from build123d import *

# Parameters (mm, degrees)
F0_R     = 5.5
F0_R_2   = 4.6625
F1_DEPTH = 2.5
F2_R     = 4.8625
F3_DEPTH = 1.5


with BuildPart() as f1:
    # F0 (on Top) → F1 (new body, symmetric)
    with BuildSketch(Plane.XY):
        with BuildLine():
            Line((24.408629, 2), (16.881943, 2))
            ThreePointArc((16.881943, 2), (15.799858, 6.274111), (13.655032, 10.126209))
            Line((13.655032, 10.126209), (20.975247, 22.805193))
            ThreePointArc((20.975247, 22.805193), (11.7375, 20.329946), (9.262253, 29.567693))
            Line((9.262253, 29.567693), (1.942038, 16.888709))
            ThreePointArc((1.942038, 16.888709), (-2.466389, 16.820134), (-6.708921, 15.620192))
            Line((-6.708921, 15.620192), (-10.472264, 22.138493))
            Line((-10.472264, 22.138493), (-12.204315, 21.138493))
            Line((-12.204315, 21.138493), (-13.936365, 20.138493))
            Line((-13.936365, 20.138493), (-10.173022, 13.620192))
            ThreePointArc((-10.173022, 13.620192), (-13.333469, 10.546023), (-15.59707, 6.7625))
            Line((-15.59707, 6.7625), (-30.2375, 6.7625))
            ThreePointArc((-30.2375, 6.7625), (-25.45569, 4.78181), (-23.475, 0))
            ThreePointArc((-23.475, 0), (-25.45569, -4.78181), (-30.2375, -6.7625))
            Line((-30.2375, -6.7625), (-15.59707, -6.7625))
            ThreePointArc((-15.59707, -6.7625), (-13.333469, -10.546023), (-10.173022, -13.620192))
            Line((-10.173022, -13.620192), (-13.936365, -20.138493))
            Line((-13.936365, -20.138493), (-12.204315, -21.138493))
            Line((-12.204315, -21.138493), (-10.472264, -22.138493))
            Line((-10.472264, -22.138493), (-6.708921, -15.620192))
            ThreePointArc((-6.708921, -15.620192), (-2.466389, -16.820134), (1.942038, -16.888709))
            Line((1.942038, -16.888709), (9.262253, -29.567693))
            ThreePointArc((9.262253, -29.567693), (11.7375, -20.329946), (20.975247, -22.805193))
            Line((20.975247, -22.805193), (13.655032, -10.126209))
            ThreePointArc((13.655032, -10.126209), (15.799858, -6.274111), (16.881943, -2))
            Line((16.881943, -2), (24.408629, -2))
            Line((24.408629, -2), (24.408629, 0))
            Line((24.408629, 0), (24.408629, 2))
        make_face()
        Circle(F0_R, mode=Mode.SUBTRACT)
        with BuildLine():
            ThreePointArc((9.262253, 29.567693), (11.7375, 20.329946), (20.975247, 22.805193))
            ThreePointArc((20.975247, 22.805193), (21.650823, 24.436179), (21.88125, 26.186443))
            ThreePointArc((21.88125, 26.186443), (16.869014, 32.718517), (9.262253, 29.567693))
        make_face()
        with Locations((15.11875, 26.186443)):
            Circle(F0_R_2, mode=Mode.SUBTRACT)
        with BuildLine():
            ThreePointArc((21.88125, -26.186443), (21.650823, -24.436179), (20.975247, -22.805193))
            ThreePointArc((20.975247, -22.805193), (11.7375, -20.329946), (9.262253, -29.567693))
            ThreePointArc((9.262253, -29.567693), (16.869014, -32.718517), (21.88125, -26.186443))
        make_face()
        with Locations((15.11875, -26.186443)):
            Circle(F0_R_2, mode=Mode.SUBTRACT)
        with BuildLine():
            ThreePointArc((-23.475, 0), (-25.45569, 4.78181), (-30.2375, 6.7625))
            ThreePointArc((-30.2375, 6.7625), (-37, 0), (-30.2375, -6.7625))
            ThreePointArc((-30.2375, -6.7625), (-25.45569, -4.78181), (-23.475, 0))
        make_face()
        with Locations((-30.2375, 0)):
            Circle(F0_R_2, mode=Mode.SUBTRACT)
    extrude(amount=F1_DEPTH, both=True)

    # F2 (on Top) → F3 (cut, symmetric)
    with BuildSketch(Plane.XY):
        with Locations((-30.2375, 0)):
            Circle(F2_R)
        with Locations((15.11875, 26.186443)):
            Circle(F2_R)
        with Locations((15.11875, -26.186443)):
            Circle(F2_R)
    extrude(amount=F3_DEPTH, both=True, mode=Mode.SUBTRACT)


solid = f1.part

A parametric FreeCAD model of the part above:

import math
import FreeCAD as App
import Part
import Sketcher

V = App.Vector
Q = App.Units.Quantity

doc = App.newDocument("Part")
body = doc.addObject("PartDesign::Body", "Body")

# Sketch on XY plane
sketch1 = body.newObject("Sketcher::SketchObject", "Sketch")
sketch1.AttachmentSupport = (doc.getObject("XY_Plane"), [""])
sketch1.MapMode = "FlatFace"
sketch1.addGeometry([
    Part.LineSegment(V(24.408629, 2, 0), V(16.881943, 2, 0)),  # 0
    Part.ArcOfCircle(Part.Circle(V(-0.000018, -0.000007, 0), V(0, 0, 1), 17.000019), math.radians(6.756342), math.radians(36.559631)),  # 1
    Part.LineSegment(V(13.655032, 10.126209, 0), V(20.975247, 22.805193, 0)),  # 2
    Part.ArcOfCircle(Part.Circle(V(15.118738, 26.186446, 0), V(0, 0, 1), 6.762512), math.radians(-29.999969), math.radians(-0.000024)),  # 3
    Part.ArcOfCircle(Part.Circle(V(15.11875, 26.186444, 0), V(0, 0, 1), 6.7625), math.radians(-0.000006), math.radians(150.000007)),  # 4
    Part.LineSegment(V(9.262253, 29.567693, 0), V(1.942038, 16.888709, 0)),  # 5
    Part.ArcOfCircle(Part.Circle(V(0.000003, -0.000025, 0), V(0, 0, 1), 17.000025), math.radians(83.44037), math.radians(113.243649)),  # 6
    Part.LineSegment(V(-6.708921, 15.620192, 0), V(-10.472264, 22.138493, 0)),  # 7
    Part.LineSegment(V(-10.472264, 22.138493, 0), V(-12.204315, 21.138493, 0)),  # 8
    Part.LineSegment(V(-12.204315, 21.138493, 0), V(-13.936365, 20.138493, 0)),  # 9
    Part.LineSegment(V(-13.936365, 20.138493, 0), V(-10.173022, 13.620192, 0)),  # 10
    Part.ArcOfCircle(Part.Circle(V(0.000004, -0.000003, 0), V(0, 0, 1), 17.000005), math.radians(126.756331), math.radians(156.559646)),  # 11
    Part.LineSegment(V(-15.59707, 6.7625, 0), V(-30.2375, 6.7625, 0)),  # 12
    Part.ArcOfCircle(Part.Circle(V(-30.2375, 0, 0), V(0, 0, 1), 6.7625), math.radians(90), math.radians(270)),  # 13
    Part.LineSegment(V(-30.2375, -6.7625, 0), V(-15.59707, -6.7625, 0)),  # 14
    Part.ArcOfCircle(Part.Circle(V(0.000004, 0.000003, 0), V(0, 0, 1), 17.000005), math.radians(-156.559646), math.radians(-126.756331)),  # 15
    Part.LineSegment(V(-10.173022, -13.620192, 0), V(-13.936365, -20.138493, 0)),  # 16
    Part.LineSegment(V(-13.936365, -20.138493, 0), V(-12.204315, -21.138493, 0)),  # 17
    Part.LineSegment(V(-12.204315, -21.138493, 0), V(-10.472264, -22.138493, 0)),  # 18
    Part.LineSegment(V(-10.472264, -22.138493, 0), V(-6.708921, -15.620192, 0)),  # 19
    Part.ArcOfCircle(Part.Circle(V(0.000003, 0.000025, 0), V(0, 0, 1), 17.000025), math.radians(-113.243649), math.radians(-83.44037)),  # 20
    Part.LineSegment(V(1.942038, -16.888709, 0), V(9.262253, -29.567693, 0)),  # 21
    Part.ArcOfCircle(Part.Circle(V(15.11875, -26.186444, 0), V(0, 0, 1), 6.7625), math.radians(-150.000007), math.radians(0.000006)),  # 22
    Part.ArcOfCircle(Part.Circle(V(15.118738, -26.186446, 0), V(0, 0, 1), 6.762512), math.radians(0.000024), math.radians(29.999969)),  # 23
    Part.LineSegment(V(20.975247, -22.805193, 0), V(13.655032, -10.126209, 0)),  # 24
    Part.ArcOfCircle(Part.Circle(V(-0.000018, 0.000007, 0), V(0, 0, 1), 17.000019), math.radians(-36.559631), math.radians(-6.756342)),  # 25
    Part.LineSegment(V(16.881943, -2, 0), V(24.408629, -2, 0)),  # 26
    Part.LineSegment(V(24.408629, -2, 0), V(24.408629, 2, 0)),  # 27
    Part.Circle(V(-30.2375, 0, 0), V(0, 0, 1), 4.6625),  # 28
    Part.Circle(V(15.11875, -26.186443, 0), V(0, 0, 1), 4.6625),  # 29
    Part.Circle(V(0, 0, 0), V(0, 0, 1), 5.5),  # 30
    Part.Circle(V(15.11875, 26.186443, 0), V(0, 0, 1), 4.6625),  # 31
], False)
sketch1.addConstraint([
    Sketcher.Constraint("Coincident", 0, 2, 1, 1),
    Sketcher.Constraint("Coincident", 1, 2, 2, 1),
    Sketcher.Constraint("Tangent", 2, 2, 3, 1),
    Sketcher.Constraint("Tangent", 3, 2, 4, 1),
    Sketcher.Constraint("Tangent", 4, 2, 5, 1),
    Sketcher.Constraint("Coincident", 5, 2, 6, 1),
    Sketcher.Constraint("Coincident", 6, 2, 7, 1),
    Sketcher.Constraint("Coincident", 7, 2, 8, 1),
    Sketcher.Constraint("Coincident", 8, 2, 9, 1),
    Sketcher.Constraint("Coincident", 9, 2, 10, 1),
    Sketcher.Constraint("Coincident", 10, 2, 11, 1),
    Sketcher.Constraint("Coincident", 11, 2, 12, 1),
    Sketcher.Constraint("Tangent", 12, 2, 13, 1),
    Sketcher.Constraint("Tangent", 13, 2, 14, 1),
    Sketcher.Constraint("Coincident", 14, 2, 15, 1),
    Sketcher.Constraint("Coincident", 15, 2, 16, 1),
    Sketcher.Constraint("Coincident", 16, 2, 17, 1),
    Sketcher.Constraint("Coincident", 17, 2, 18, 1),
    Sketcher.Constraint("Coincident", 18, 2, 19, 1),
    Sketcher.Constraint("Coincident", 19, 2, 20, 1),
    Sketcher.Constraint("Coincident", 20, 2, 21, 1),
    Sketcher.Constraint("Tangent", 21, 2, 22, 1),
    Sketcher.Constraint("Tangent", 22, 2, 23, 1),
    Sketcher.Constraint("Tangent", 23, 2, 24, 1),
    Sketcher.Constraint("Coincident", 24, 2, 25, 1),
    Sketcher.Constraint("Coincident", 25, 2, 26, 1),
    Sketcher.Constraint("Coincident", 26, 2, 27, 1),
    Sketcher.Constraint("Coincident", 27, 2, 0, 1),
    Sketcher.Constraint("Horizontal", 0),
    Sketcher.Constraint("Horizontal", 12),
    Sketcher.Constraint("Horizontal", 14),
    Sketcher.Constraint("Horizontal", 26),
    Sketcher.Constraint("Vertical", 27),
    Sketcher.Constraint("Coincident", 11, 3, -1, 1),
    Sketcher.Constraint("Coincident", 15, 3, -1, 1),
    Sketcher.Constraint("Coincident", 30, 3, -1, 1),
    Sketcher.Constraint("Coincident", 28, 3, 13, 3),
    Sketcher.Constraint("Coincident", 29, 3, 22, 3),
    Sketcher.Constraint("Coincident", 31, 3, 4, 3),
    Sketcher.Constraint("Equal", 4, 13),
    Sketcher.Constraint("Equal", 11, 15),
    Sketcher.Constraint("Equal", 6, 20),
    Sketcher.Constraint("Equal", 13, 22),
    Sketcher.Constraint("Equal", 3, 23),
    Sketcher.Constraint("Equal", 1, 25),
    Sketcher.Constraint("Equal", 28, 29),
    Sketcher.Constraint("Equal", 29, 31),
    Sketcher.Constraint("Symmetric", 6, 3, 20, 3, -1, 1),
    Sketcher.Constraint("Symmetric", 4, 3, 22, 3, -1),
    Sketcher.Constraint("Symmetric", 1, 3, 25, 3, -1),
    Sketcher.Constraint("Symmetric", 9, 2, 16, 2, -1),
    Sketcher.Constraint("Symmetric", 8, 2, 17, 2, -1),
    Sketcher.Constraint("Symmetric", 7, 2, 18, 2, -1),
    Sketcher.Constraint("Symmetric", 6, 2, 19, 2, -1),
    Sketcher.Constraint("PointOnObject", 13, 3, -1),
    Sketcher.Constraint("Parallel", 2, 5),
    Sketcher.Constraint("Perpendicular", 7, 8),
    Sketcher.Constraint("Parallel", 8, 9),
    Sketcher.Constraint("Perpendicular", 9, 10),
    Sketcher.Constraint("Parallel", 5, 16),
    Sketcher.Constraint("Perpendicular", 16, 17),
    Sketcher.Constraint("Parallel", 10, 21),
    Sketcher.Constraint("Parallel", 21, 24),
    Sketcher.Constraint("Horizontal", 31, 3, 3, 2),
    Sketcher.Constraint("Horizontal", 29, 3, 22, 2),
    Sketcher.Constraint("Vertical", 0, 2, 25, 2),
    Sketcher.Constraint("Equal", 2, 5),
    Sketcher.Constraint("Equal", 8, 9),
    Sketcher.Constraint("Equal", 7, 10),
    Sketcher.Constraint("Diameter", 30, Q("11 mm")),
    Sketcher.Constraint("DistanceY", 27, 1, 27, 2, Q("4 mm")),
    Sketcher.Constraint("Angle", 2, Q("59.999999 deg")),
    Sketcher.Constraint("Distance", 8, Q("2 mm")),
    Sketcher.Constraint("Diameter", 28, Q("9.325 mm")),
    Sketcher.Constraint("Radius", 4, Q("6.7625 mm")),
    Sketcher.Constraint("Radius", 1, Q("17.000019 mm")),
    Sketcher.Constraint("Radius", 3, Q("6.762512 mm")),
    Sketcher.Constraint("Radius", 6, Q("17.000025 mm")),
    Sketcher.Constraint("Radius", 11, Q("17.000005 mm")),
    Sketcher.Constraint("DistanceX", 12, 2, 12, 1, Q("14.64043 mm")),
    Sketcher.Constraint("DistanceX", 5, 2, 3, 3, Q("13.1767 mm")),
    Sketcher.Constraint("DistanceY", 1, 3, 6, 2, Q("15.620199 mm")),
    Sketcher.Constraint("DistanceY", 6, 2, 7, 2, Q("6.518301 mm")),
    Sketcher.Constraint("DistanceX", 7, 2, 5, 2, Q("12.414302 mm")),
    Sketcher.Constraint("DistanceY", 7, 2, 4, 2, Q("7.4292 mm")),
    Sketcher.Constraint("DistanceX", 0, 2, 0, 1, Q("7.526686 mm")),
])
pad1 = body.newObject("PartDesign::Pad", "Pad")
pad1.Profile = sketch1
pad1.Length = 5
pad1.Midplane = True

# Sketch on XY plane
sketch2 = body.newObject("Sketcher::SketchObject", "Sketch001")
sketch2.AttachmentSupport = (doc.getObject("XY_Plane"), [""])
sketch2.MapMode = "FlatFace"
sketch2.addGeometry([
    Part.Circle(V(-30.2375, 0, 0), V(0, 0, 1), 4.8625),
    Part.Circle(V(15.11875, 26.186443, 0), V(0, 0, 1), 4.8625),
    Part.Circle(V(15.11875, -26.186443, 0), V(0, 0, 1), 4.8625),
], False)
sketch2.addConstraint([
    Sketcher.Constraint("Equal", 0, 1),
    Sketcher.Constraint("Equal", 1, 2),
    Sketcher.Constraint("Symmetric", 1, 3, 2, 3, -1),
    Sketcher.Constraint("PointOnObject", 0, 3, -1),
    Sketcher.Constraint("Diameter", 0, Q("9.725 mm")),
    Sketcher.Constraint("DistanceX", 0, 3, -1, 1, Q("30.2375 mm")),
    Sketcher.Constraint("DistanceX", -1, 1, 1, 3, Q("15.11875 mm")),
    Sketcher.Constraint("DistanceY", -1, 1, 1, 3, Q("26.186443 mm")),
])
pocket1 = body.newObject("PartDesign::Pocket", "Pocket")
pocket1.Profile = sketch2
pocket1.Length = 3
pocket1.Midplane = True

doc.recompute()
